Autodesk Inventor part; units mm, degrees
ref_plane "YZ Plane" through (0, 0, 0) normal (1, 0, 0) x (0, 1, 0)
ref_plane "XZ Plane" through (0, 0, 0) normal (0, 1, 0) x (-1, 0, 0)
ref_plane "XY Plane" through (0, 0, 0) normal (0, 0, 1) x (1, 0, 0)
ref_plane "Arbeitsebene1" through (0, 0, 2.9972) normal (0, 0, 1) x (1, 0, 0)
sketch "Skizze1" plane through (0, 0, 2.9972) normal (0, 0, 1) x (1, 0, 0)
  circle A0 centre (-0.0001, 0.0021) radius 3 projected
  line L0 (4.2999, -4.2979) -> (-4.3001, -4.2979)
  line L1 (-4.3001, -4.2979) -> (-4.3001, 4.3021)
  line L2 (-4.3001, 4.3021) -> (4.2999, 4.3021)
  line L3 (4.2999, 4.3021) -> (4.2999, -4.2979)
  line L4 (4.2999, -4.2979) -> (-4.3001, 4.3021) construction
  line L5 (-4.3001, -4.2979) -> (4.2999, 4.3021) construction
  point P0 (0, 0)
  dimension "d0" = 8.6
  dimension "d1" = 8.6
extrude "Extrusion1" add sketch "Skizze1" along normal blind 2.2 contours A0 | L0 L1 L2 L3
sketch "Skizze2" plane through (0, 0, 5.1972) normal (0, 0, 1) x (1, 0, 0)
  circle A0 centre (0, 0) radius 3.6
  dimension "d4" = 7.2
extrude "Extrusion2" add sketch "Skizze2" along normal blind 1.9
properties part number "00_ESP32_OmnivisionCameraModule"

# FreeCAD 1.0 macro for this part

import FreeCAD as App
import Part
import Sketcher
from FreeCAD import Vector
Q = App.Units.Quantity

doc = App.newDocument("Part")
body = doc.addObject("PartDesign::Body", "Body")

# Sketch on XY plane
sketch1 = body.newObject("Sketcher::SketchObject", "Sketch")
sketch1.AttachmentSupport = (doc.getObject("XY_Plane"), [""])
sketch1.MapMode = "FlatFace"
sketch1.AttachmentOffset = App.Placement(Vector(0, 0, 2.9972), App.Rotation())
sketch1.addGeometry([
    Part.LineSegment(Vector(-4, -4, 0), Vector(4, -4, 0)),
    Part.LineSegment(Vector(4, -4, 0), Vector(4, 4, 0)),
    Part.LineSegment(Vector(4, 4, 0), Vector(-4, 4, 0)),
    Part.LineSegment(Vector(-4, 4, 0), Vector(-4, -4, 0)),
], False)
sketch1.addConstraint([
    Sketcher.Constraint("Coincident", 0, 2, 1, 1),
    Sketcher.Constraint("Coincident", 1, 2, 2, 1),
    Sketcher.Constraint("Coincident", 2, 2, 3, 1),
    Sketcher.Constraint("Coincident", 3, 2, 0, 1),
    Sketcher.Constraint("Horizontal", 0),
    Sketcher.Constraint("Vertical", 1),
    Sketcher.Constraint("Horizontal", 2),
    Sketcher.Constraint("Vertical", 3),
    Sketcher.Constraint("Equal", 2, 1),
    Sketcher.Constraint("DistanceX", 0, 1, 0, 2, Q("8.6 mm")),
    Sketcher.Constraint("DistanceX", -1, 1, 0, 2, Q("4.3 mm")),
    Sketcher.Constraint("DistanceY", 0, 2, -1, 1, Q("4.298 mm")),
])
pad1 = body.newObject("PartDesign::Pad", "Pad")
pad1.Profile = sketch1
pad1.Length = 2.2

# Sketch on XY plane
sketch2 = body.newObject("Sketcher::SketchObject", "Sketch001")
sketch2.AttachmentSupport = (doc.getObject("XY_Plane"), [""])
sketch2.MapMode = "FlatFace"
sketch2.AttachmentOffset = App.Placement(Vector(0, 0, 5.1972), App.Rotation())
sketch2.addGeometry(Part.Circle(Vector(0, 0, 0), Vector(0, 0, 1), 3.6), False)
sketch2.addConstraint([
    Sketcher.Constraint("Coincident", 0, 3, -1, 1),
    Sketcher.Constraint("Diameter", 0, Q("7.2 mm")),
])
pad2 = body.newObject("PartDesign::Pad", "Pad001")
pad2.Profile = sketch2
pad2.Length = 1.9

doc.recompute()
